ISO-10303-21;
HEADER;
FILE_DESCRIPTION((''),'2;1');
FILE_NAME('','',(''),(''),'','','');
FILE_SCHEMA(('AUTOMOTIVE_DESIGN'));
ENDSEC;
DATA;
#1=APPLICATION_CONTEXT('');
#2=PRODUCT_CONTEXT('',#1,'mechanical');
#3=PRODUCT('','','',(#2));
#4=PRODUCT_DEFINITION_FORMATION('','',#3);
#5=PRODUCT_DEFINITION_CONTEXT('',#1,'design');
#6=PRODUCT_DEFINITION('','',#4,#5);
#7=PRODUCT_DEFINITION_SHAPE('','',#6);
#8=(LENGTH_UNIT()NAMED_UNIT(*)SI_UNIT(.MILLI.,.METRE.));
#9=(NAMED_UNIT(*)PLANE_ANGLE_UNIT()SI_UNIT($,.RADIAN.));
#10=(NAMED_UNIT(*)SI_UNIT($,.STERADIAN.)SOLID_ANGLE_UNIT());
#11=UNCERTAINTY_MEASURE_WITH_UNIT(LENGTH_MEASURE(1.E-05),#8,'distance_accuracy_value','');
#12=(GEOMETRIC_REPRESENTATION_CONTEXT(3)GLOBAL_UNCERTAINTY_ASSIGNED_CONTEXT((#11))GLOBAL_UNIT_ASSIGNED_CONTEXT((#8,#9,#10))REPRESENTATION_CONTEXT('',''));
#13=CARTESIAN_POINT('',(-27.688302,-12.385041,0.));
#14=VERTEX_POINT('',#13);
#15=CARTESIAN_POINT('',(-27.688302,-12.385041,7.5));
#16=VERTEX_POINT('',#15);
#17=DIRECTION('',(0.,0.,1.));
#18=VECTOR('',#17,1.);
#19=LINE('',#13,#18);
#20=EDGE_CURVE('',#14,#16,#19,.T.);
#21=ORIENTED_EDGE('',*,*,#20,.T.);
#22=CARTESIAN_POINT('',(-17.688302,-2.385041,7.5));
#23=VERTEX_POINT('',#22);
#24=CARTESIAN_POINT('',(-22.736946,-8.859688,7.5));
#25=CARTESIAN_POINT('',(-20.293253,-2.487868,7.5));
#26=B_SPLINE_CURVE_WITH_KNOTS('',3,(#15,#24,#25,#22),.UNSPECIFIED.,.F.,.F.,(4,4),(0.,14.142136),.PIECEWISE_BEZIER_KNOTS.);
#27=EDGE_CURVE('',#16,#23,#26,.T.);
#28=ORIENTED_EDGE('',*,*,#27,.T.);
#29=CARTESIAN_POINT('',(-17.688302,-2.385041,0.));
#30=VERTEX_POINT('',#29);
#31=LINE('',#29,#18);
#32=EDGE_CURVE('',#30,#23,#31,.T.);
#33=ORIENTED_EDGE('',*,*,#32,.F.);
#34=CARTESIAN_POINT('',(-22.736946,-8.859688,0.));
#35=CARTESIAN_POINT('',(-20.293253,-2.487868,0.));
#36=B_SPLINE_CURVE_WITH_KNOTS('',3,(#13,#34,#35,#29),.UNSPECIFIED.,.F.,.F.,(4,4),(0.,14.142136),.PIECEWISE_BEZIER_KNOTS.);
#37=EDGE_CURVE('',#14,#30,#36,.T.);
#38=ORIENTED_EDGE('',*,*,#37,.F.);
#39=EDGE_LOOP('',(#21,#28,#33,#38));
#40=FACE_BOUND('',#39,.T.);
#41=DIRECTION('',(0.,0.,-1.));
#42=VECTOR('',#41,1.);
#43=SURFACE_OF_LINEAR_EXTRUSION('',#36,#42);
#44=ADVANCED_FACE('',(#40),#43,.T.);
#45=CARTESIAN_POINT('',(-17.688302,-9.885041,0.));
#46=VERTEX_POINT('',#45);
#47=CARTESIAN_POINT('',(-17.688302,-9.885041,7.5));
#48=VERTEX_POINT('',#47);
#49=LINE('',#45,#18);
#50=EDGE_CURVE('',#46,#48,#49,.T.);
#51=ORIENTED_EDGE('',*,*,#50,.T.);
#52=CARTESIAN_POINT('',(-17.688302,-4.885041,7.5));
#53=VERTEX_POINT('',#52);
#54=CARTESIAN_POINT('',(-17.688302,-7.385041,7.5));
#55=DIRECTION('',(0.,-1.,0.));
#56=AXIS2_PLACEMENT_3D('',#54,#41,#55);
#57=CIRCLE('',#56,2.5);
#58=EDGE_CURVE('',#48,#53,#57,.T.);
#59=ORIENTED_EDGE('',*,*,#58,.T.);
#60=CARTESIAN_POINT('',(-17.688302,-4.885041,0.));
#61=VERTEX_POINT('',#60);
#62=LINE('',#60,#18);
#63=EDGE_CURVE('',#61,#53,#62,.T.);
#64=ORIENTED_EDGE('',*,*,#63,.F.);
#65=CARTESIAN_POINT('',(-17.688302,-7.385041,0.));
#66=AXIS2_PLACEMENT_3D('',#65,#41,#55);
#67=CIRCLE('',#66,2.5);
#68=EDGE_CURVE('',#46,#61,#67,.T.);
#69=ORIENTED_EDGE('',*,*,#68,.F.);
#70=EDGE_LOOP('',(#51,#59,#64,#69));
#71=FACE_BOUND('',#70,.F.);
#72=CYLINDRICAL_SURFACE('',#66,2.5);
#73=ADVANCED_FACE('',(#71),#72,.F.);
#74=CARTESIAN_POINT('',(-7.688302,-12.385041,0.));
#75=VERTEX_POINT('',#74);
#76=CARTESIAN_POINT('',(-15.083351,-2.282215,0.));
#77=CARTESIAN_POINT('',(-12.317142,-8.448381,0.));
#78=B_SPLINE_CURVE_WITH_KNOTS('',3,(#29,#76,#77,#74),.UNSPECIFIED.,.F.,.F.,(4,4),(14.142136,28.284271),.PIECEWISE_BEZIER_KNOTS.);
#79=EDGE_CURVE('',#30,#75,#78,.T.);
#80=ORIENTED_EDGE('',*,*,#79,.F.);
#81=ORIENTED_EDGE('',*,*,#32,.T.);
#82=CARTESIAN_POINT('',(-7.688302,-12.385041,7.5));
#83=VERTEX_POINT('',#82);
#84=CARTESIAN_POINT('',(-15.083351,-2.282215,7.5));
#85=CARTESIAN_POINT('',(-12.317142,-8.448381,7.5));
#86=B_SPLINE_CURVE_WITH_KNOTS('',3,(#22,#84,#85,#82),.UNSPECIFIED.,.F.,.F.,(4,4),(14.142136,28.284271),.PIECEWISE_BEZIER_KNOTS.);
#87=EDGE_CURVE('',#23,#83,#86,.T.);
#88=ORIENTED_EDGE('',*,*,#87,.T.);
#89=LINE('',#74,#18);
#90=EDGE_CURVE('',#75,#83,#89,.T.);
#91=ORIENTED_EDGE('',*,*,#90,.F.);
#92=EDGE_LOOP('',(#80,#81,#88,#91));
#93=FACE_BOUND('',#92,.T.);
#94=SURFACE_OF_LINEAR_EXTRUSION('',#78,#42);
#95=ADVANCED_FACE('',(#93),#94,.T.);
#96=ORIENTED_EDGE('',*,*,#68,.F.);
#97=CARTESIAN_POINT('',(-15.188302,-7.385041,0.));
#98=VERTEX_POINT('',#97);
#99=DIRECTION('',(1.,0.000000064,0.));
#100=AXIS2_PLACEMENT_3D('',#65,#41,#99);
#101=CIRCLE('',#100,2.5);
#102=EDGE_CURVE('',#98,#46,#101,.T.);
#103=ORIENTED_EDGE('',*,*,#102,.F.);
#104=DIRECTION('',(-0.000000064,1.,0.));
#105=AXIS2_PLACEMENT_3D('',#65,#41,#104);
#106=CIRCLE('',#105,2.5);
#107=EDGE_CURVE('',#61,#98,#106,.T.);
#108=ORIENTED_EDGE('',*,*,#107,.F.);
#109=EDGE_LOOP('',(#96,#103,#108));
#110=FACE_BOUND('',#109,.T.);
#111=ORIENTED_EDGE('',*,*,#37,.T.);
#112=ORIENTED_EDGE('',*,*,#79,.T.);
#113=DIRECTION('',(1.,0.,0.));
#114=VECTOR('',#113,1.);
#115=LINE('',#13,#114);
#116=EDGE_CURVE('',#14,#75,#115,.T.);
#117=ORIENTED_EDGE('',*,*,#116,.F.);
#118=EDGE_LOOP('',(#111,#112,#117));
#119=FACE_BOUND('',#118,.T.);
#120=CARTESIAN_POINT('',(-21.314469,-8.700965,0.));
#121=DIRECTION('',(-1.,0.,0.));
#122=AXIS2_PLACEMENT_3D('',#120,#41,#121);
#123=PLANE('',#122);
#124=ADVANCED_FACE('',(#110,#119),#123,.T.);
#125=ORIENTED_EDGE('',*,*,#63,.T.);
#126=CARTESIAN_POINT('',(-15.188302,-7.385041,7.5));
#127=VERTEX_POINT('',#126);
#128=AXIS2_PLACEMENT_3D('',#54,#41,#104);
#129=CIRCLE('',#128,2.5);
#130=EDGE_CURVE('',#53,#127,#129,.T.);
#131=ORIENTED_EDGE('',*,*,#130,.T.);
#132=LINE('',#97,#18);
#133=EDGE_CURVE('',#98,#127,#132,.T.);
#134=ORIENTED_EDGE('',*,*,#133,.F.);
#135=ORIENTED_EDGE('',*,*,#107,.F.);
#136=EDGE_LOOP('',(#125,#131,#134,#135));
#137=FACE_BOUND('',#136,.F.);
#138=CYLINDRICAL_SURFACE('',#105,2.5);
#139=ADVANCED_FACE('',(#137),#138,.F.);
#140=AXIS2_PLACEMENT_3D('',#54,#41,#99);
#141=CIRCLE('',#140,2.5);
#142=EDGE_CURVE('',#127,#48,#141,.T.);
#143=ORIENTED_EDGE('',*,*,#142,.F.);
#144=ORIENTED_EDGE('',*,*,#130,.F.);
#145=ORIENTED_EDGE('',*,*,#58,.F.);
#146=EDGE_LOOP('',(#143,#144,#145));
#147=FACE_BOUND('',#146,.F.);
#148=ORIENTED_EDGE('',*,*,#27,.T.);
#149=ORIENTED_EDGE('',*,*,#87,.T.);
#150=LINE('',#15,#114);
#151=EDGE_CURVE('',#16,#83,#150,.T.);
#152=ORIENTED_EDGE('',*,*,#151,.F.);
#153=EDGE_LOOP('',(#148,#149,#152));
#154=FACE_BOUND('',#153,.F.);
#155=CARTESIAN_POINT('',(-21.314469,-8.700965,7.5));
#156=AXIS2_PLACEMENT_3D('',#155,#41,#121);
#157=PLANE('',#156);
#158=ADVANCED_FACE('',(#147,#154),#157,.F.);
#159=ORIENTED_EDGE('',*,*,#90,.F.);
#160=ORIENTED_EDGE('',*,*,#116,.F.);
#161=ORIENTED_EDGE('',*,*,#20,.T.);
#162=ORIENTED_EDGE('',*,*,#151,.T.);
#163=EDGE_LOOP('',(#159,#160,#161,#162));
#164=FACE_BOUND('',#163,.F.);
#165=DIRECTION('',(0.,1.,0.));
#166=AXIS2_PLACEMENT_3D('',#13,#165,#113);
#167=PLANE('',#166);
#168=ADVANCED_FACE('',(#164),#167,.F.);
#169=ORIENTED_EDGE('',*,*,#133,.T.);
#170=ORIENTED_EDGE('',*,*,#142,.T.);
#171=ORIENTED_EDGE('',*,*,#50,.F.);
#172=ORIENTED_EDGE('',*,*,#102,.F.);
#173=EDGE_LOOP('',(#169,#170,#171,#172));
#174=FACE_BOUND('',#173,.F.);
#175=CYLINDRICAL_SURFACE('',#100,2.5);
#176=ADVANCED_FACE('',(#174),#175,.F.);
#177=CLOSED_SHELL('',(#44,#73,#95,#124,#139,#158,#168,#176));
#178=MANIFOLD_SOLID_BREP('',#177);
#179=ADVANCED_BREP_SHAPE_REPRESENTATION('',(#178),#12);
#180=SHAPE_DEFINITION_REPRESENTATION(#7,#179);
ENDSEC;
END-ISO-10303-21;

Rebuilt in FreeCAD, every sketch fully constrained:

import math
import FreeCAD as App
import Part
import Sketcher

V = App.Vector

doc = App.newDocument("Part")
params = doc.addObject("Spreadsheet::Sheet", "Params")
for row, (alias, value) in enumerate([
    ("sketch1_radius", "2.5 mm"),
    ("pad1_length", "7.5 mm"),
], start=1):
    params.set(f"A{row}", alias)
    params.set(f"B{row}", "=" + value)
    params.setAlias(f"B{row}", alias)

body = doc.addObject("PartDesign::Body", "Body")

sketch1 = body.newObject("Sketcher::SketchObject", "Sketch")
sketch1.AttachmentSupport = (doc.getObject("XY_Plane"), [""])
sketch1.MapMode = "FlatFace"
sketch1.addGeometry(Part.BSplineCurve([V(-27.688302, -12.385041, 0), V(-22.736946, -8.859688, 0), V(-20.293253, -2.487868, 0), V(-17.688302, -2.385041, 0)], [4, 4], [0, 14.142136], False, 3, [1, 1, 1, 1], False), False)
sketch1.addGeometry(Part.LineSegment(V(-27.688302, -12.385041, 0), V(-7.688302, -12.385041, 0)), False)
sketch1.addGeometry(Part.BSplineCurve([V(-17.688302, -2.385041, 0), V(-15.083351, -2.282215, 0), V(-12.317142, -8.448381, 0), V(-7.688302, -12.385041, 0)], [4, 4], [14.142136, 28.284271], False, 3, [1, 1, 1, 1], False), False)
sketch1.addGeometry(Part.ArcOfCircle(Part.Circle(V(-17.688302, -7.385041, 0), V(0, 0, 1), 2.5), math.radians(90), math.radians(270)), False)
sketch1.addGeometry(Part.ArcOfCircle(Part.Circle(V(-17.688302, -7.385041, 0), V(0, 0, 1), 2.5), math.radians(-0.000004), math.radians(90.000004)), False)
sketch1.addGeometry(Part.ArcOfCircle(Part.Circle(V(-17.688302, -7.385041, 0), V(0, 0, 1), 2.5), math.radians(-90.000004), math.radians(0.000004)), False)
sketch1.addConstraint(Sketcher.Constraint("Block", 0))
sketch1.addConstraint(Sketcher.Constraint("Block", 2))
sketch1.addConstraint(Sketcher.Constraint("Coincident", 0, 1, 1, 1))
sketch1.addConstraint(Sketcher.Constraint("Coincident", 1, 2, 2, 2))
sketch1.addConstraint(Sketcher.Constraint("Tangent", 3, 1, 4, 2))
sketch1.addConstraint(Sketcher.Constraint("Tangent", 4, 1, 5, 2))
sketch1.addConstraint(Sketcher.Constraint("Tangent", 5, 1, 3, 2))
sketch1.addConstraint(Sketcher.Constraint("Horizontal", 5, 3, 4, 1))
sketch1.addConstraint(Sketcher.Constraint("Vertical", 5, 3, 3, 1))
sketch1.addConstraint(Sketcher.Constraint("Vertical", 3, 1, 5, 1))
sketch1.addConstraint(Sketcher.Constraint("Radius", 3, 2.5))
sketch1.addConstraint(Sketcher.Constraint("DistanceX", 5, 3, 1, 2, 10.0))
sketch1.addConstraint(Sketcher.Constraint("DistanceY", 1, 2, 5, 3, 5.0))
sketch1.setExpression("Constraints[10]", "Params.sketch1_radius")
pad1 = body.newObject("PartDesign::Pad", "Pad")
pad1.Profile = sketch1
pad1.setExpression("Length", "Params.pad1_length")

doc.recompute()
